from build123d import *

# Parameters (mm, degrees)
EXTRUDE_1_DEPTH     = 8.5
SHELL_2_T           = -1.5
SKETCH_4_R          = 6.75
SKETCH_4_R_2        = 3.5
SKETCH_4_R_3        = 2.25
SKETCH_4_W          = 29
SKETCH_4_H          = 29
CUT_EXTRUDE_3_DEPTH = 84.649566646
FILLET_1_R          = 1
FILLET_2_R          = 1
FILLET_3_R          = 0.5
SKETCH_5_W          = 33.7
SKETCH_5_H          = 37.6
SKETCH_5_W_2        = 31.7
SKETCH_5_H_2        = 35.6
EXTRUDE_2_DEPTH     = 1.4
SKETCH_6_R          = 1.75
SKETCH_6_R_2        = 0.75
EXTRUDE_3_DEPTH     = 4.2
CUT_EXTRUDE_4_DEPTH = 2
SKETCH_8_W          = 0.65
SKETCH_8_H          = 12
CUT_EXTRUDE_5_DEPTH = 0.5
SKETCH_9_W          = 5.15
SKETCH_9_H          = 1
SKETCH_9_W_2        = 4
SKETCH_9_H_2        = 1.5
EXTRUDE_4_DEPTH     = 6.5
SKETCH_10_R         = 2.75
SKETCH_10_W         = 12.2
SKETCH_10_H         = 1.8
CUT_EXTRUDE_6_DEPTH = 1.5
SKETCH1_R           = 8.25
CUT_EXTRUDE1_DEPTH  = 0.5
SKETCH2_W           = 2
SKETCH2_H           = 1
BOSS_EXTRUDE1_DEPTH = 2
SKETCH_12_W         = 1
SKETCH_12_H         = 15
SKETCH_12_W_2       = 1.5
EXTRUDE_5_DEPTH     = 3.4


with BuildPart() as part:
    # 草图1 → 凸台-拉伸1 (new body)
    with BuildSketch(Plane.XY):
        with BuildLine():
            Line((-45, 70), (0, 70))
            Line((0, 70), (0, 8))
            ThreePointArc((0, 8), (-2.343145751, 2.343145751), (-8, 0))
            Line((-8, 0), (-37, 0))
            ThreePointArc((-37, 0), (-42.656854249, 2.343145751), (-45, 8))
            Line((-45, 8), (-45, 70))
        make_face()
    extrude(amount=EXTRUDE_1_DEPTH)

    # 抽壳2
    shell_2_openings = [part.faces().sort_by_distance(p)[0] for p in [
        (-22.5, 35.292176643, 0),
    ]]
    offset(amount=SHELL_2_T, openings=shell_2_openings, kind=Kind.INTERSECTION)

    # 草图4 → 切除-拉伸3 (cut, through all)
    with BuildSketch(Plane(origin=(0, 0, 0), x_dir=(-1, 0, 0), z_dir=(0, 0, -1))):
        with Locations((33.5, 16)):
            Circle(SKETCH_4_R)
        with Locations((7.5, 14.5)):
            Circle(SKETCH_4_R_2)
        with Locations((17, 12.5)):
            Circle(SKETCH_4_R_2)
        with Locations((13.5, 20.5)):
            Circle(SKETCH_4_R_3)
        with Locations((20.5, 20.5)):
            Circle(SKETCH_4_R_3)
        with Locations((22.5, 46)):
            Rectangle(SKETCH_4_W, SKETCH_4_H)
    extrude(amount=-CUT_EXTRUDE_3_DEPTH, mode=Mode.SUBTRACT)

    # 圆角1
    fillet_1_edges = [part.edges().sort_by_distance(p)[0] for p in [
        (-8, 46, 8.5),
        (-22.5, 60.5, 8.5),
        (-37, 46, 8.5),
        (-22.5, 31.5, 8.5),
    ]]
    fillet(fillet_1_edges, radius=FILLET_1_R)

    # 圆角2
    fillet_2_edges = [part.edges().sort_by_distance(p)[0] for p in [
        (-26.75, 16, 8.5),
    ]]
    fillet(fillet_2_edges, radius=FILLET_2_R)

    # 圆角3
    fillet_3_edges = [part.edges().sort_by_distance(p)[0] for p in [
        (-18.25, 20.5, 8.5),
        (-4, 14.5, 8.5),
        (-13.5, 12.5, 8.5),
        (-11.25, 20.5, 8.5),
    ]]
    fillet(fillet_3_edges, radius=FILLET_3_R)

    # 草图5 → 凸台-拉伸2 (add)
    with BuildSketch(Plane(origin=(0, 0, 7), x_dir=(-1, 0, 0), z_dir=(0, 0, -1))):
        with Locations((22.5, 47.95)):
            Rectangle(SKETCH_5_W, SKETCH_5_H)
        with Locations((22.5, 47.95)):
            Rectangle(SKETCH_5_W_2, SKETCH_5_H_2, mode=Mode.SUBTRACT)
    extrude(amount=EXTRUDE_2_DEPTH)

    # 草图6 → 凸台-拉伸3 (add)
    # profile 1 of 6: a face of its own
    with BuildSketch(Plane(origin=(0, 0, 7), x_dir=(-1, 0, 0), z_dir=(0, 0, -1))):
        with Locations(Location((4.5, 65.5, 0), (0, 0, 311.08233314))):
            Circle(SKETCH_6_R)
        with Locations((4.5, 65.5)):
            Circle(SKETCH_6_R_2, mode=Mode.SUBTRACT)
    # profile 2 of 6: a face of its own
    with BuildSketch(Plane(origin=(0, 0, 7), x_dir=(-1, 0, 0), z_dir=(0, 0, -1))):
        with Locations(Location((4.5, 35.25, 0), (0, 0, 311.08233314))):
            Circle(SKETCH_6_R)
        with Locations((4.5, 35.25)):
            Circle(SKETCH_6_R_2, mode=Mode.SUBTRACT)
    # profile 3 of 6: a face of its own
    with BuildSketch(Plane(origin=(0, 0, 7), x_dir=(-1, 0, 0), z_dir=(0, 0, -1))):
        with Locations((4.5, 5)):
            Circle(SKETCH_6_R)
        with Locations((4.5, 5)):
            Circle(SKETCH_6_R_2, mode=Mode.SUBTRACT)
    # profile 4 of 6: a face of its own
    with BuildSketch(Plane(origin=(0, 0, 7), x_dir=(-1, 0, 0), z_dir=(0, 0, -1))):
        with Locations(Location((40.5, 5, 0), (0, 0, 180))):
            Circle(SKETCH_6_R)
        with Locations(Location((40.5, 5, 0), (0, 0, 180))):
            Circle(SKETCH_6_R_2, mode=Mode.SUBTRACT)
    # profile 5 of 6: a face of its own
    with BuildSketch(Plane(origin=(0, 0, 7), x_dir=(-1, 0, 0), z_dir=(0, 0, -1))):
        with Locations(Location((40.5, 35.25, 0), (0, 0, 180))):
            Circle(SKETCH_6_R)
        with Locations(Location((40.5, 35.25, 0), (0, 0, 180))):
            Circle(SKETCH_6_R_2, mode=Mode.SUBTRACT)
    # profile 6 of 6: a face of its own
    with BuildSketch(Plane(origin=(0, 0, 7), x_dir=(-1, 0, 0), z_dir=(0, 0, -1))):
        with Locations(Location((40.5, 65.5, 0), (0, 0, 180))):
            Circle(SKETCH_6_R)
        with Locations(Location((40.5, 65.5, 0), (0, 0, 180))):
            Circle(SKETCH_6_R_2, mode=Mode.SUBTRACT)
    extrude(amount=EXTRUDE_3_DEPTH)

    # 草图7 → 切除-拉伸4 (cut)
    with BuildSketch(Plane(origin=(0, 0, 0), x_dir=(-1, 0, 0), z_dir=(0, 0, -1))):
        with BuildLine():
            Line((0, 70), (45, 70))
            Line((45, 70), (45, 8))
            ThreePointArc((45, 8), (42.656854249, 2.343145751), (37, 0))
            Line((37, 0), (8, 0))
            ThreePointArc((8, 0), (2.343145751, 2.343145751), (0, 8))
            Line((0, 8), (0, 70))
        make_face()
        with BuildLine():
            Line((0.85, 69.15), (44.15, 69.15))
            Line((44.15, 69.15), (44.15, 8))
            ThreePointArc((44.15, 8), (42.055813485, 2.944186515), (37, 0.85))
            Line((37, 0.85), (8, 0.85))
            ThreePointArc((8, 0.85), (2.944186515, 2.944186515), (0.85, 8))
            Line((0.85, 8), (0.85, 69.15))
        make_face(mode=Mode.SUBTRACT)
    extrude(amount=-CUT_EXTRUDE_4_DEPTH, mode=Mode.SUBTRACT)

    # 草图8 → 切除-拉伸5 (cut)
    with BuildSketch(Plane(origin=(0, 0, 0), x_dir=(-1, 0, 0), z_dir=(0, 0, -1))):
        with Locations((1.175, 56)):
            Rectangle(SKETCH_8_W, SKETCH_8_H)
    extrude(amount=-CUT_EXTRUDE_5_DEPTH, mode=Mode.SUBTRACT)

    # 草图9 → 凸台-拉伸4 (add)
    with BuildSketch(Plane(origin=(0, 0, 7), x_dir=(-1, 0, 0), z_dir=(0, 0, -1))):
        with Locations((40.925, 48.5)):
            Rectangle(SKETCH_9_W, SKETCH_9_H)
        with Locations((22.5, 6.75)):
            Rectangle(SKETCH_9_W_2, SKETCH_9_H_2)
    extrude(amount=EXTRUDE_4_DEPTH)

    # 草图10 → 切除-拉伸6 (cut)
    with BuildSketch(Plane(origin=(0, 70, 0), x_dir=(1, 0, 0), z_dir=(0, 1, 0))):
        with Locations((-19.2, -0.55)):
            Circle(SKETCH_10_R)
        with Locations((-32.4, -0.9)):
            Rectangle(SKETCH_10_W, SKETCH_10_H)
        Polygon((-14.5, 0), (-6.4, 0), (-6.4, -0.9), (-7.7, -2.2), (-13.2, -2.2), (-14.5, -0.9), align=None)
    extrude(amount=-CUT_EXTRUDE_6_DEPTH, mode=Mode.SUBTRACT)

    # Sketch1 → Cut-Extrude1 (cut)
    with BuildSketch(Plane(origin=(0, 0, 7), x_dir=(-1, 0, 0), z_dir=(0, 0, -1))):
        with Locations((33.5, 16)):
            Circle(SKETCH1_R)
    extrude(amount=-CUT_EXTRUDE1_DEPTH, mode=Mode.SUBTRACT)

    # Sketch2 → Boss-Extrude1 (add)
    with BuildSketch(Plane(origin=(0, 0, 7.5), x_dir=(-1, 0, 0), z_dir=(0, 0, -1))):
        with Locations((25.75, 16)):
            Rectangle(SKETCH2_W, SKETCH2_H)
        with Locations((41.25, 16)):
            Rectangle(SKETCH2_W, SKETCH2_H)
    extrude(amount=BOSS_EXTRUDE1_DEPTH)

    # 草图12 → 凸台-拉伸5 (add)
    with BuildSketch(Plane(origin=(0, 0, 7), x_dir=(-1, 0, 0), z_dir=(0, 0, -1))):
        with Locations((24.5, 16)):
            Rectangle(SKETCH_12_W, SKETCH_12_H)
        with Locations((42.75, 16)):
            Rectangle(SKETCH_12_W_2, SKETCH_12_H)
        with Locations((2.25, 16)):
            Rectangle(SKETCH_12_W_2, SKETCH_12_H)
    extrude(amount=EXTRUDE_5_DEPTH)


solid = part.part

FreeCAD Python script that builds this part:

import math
import FreeCAD as App
import Part
import Sketcher
from FreeCAD import Vector


def edges_at(feature, points):
    """Names of the edges that pass closest to the given points."""
    edges = feature.Shape.Edges
    near = lambda p: min(range(len(edges)), key=lambda i: edges[i].distToShape(Part.Vertex(*p))[0])
    return sorted({f"Edge{near(p) + 1}" for p in points})


def faces_at(feature, points):
    """Names of the faces that lie closest to the given points."""
    faces = feature.Shape.Faces
    near = lambda p: min(range(len(faces)), key=lambda i: faces[i].distToShape(Part.Vertex(*p))[0])
    return sorted({f"Face{near(p) + 1}" for p in points})


def add_polygon(sketch, points):
    """Adds a closed chain of lines whose ends are joined by coincident constraints."""
    first, n = sketch.GeometryCount, len(points)
    for a, b in zip(points, points[1:] + points[:1]):
        sketch.addGeometry(Part.LineSegment(App.Vector(*a, 0), App.Vector(*b, 0)), False)
    for i in range(n):
        sketch.addConstraint(Sketcher.Constraint("Coincident", first + i, 2, first + (i + 1) % n, 1))

doc = App.newDocument("Part")
body = doc.addObject("PartDesign::Body", "Body")

sketch1 = body.newObject("Sketcher::SketchObject", "Sketch")
sketch1.AttachmentSupport = (doc.getObject("XY_Plane"), [""])
sketch1.MapMode = "FlatFace"
sketch1.addGeometry([
    Part.LineSegment(Vector(0, 70, 0), Vector(-45, 70, 0)),
    Part.LineSegment(Vector(-45, 70, 0), Vector(-45, 8, 0)),
    Part.ArcOfCircle(Part.Circle(Vector(-37, 8, 0), Vector(0, 0, 1), 8), math.radians(-180), math.radians(-90)),
    Part.LineSegment(Vector(-37, 0, 0), Vector(-8, 0, 0)),
    Part.ArcOfCircle(Part.Circle(Vector(-8, 8, 0), Vector(0, 0, 1), 8), math.radians(-90), math.radians(0)),
    Part.LineSegment(Vector(0, 8, 0), Vector(0, 70, 0)),
], False)
sketch1.addConstraint([
    Sketcher.Constraint("Coincident", 0, 2, 1, 1),
    Sketcher.Constraint("Tangent", 1, 2, 2, 1),
    Sketcher.Constraint("Tangent", 2, 2, 3, 1),
    Sketcher.Constraint("Tangent", 3, 2, 4, 1),
    Sketcher.Constraint("Tangent", 4, 2, 5, 1),
    Sketcher.Constraint("Coincident", 5, 2, 0, 1),
    Sketcher.Constraint("Horizontal", 0),
    Sketcher.Constraint("Vertical", 1),
    Sketcher.Constraint("Horizontal", 3),
    Sketcher.Constraint("Vertical", 5),
    Sketcher.Constraint("Equal", 2, 4),
    Sketcher.Constraint("PointOnObject", 2, 2, -1),
    Sketcher.Constraint("PointOnObject", 4, 2, -2),
    Sketcher.Constraint("Radius", 2, 8.0),
    Sketcher.Constraint("DistanceX", 0, 2, 0, 1, 45.0),
    Sketcher.Constraint("DistanceY", 1, 2, 1, 1, 62.0),
])
pad1 = body.newObject("PartDesign::Pad", "Pad")
pad1.Profile = sketch1
pad1.Length = 8.5
doc.recompute()

thickness = body.newObject("PartDesign::Thickness", "Thickness")
thickness.Base = (pad1, faces_at(pad1, [(-22.5, 35, 0)]))
thickness.Value = 1.5
thickness.Reversed = True
thickness.Join = "Intersection"

sketch2 = body.newObject("Sketcher::SketchObject", "Sketch001")
sketch2.AttachmentSupport = (doc.getObject("XY_Plane"), [""])
sketch2.MapMode = "FlatFace"
sketch2.addGeometry(Part.Circle(Vector(-33.5, 16, 0), Vector(0, 0, 1), 6.8), False)
sketch2.addGeometry(Part.Circle(Vector(-7.5, 14.5, 0), Vector(0, 0, 1), 3.5), False)
sketch2.addGeometry(Part.Circle(Vector(-17, 12.5, 0), Vector(0, 0, 1), 3.5), False)
sketch2.addGeometry(Part.Circle(Vector(-13.5, 20.5, 0), Vector(0, 0, 1), 2.2), False)
sketch2.addGeometry(Part.Circle(Vector(-20.5, 20.5, 0), Vector(0, 0, 1), 2.2), False)
add_polygon(sketch2, [(-8, 60.5), (-8, 31.5), (-37, 31.5), (-37, 60.5)])
sketch2.addConstraint([
    Sketcher.Constraint("Vertical", 5),
    Sketcher.Constraint("Horizontal", 6),
    Sketcher.Constraint("Vertical", 7),
    Sketcher.Constraint("Horizontal", 8),
    Sketcher.Constraint("Equal", 1, 2),
    Sketcher.Constraint("Equal", 3, 4),
    Sketcher.Constraint("Horizontal", 3, 3, 4, 3),
    Sketcher.Constraint("Equal", 8, 5),
    Sketcher.Constraint("Diameter", 1, 7.0),
    Sketcher.Constraint("Diameter", 0, 13.5),
    Sketcher.Constraint("Diameter", 3, 4.5),
    Sketcher.Constraint("DistanceX", 6, 2, 6, 1, 29.0),
    Sketcher.Constraint("DistanceY", -1, 1, 0, 3, 16.0),
    Sketcher.Constraint("DistanceX", 2, 3, -1, 1, 17.0),
    Sketcher.Constraint("DistanceX", 5, 2, -1, 1, 8.0),
    Sketcher.Constraint("DistanceX", 0, 3, 1, 3, 26.0),
    Sketcher.Constraint("DistanceY", 2, 3, 1, 3, 2.0),
    Sketcher.Constraint("DistanceX", 3, 3, 1, 3, 6.0),
    Sketcher.Constraint("DistanceY", 1, 3, 3, 3, 6.0),
    Sketcher.Constraint("DistanceX", 4, 3, 3, 3, 7.0),
    Sketcher.Constraint("DistanceY", 3, 3, 5, 2, 11.0),
    Sketcher.Constraint("DistanceX", 0, 3, -1, 1, 33.5),
    Sketcher.Constraint("DistanceY", -1, 1, 1, 3, 14.5),
])
pocket1 = body.newObject("PartDesign::Pocket", "Pocket")
pocket1.Profile = sketch2
pocket1.Type = "ThroughAll"
pocket1.Reversed = True
doc.recompute()

fillet = body.newObject("PartDesign::Fillet", "Fillet")
fillet.Base = (pocket1, edges_at(pocket1, [
    (-8, 46, 8.5),
    (-22.5, 60.5, 8.5),
    (-37, 46, 8.5),
    (-22.5, 31.5, 8.5),
]))
fillet.Radius = 1
doc.recompute()

fillet2 = body.newObject("PartDesign::Fillet", "Fillet001")
fillet2.Base = (fillet, edges_at(fillet, [(-26.75, 16, 8.5)]))
fillet2.Radius = 1
doc.recompute()

fillet3 = body.newObject("PartDesign::Fillet", "Fillet002")
fillet3.Base = (fillet2, edges_at(fillet2, [
    (-18.25, 20.5, 8.5),
    (-4, 14.5, 8.5),
    (-13.5, 12.5, 8.5),
    (-11.25, 20.5, 8.5),
]))
fillet3.Radius = 0.5

sketch3 = body.newObject("Sketcher::SketchObject", "Sketch002")
sketch3.AttachmentSupport = (doc.getObject("XY_Plane"), [""])
sketch3.MapMode = "FlatFace"
sketch3.AttachmentOffset = App.Placement(Vector(0, 0, 7), App.Rotation())
add_polygon(sketch3, [(-6, 67), (-6, 29), (-39, 29), (-39, 67)])
add_polygon(sketch3, [(-38, 30), (-7, 30), (-7, 66), (-38, 66)])
sketch3.addConstraint([
    Sketcher.Constraint("Vertical", 0),
    Sketcher.Constraint("Horizontal", 1),
    Sketcher.Constraint("Vertical", 2),
    Sketcher.Constraint("Horizontal", 3),
    Sketcher.Constraint("Horizontal", 4),
    Sketcher.Constraint("Vertical", 5),
    Sketcher.Constraint("Horizontal", 6),
    Sketcher.Constraint("Vertical", 7),
    Sketcher.Constraint("DistanceX", 1, 2, 1, 1, 33.7),
    Sketcher.Constraint("DistanceX", 4, 1, 4, 2, 31.7),
    Sketcher.Constraint("DistanceY", 0, 2, 0, 1, 37.6),
    Sketcher.Constraint("DistanceY", 5, 1, 5, 2, 35.6),
    Sketcher.Constraint("DistanceX", 4, 2, 0, 2, 1.0),
    Sketcher.Constraint("DistanceY", 0, 2, 4, 2, 1.0),
    Sketcher.Constraint("DistanceX", 0, 2, -1, 1, 5.65),
    Sketcher.Constraint("DistanceY", -1, 1, 0, 2, 29.15),
])
pad2 = body.newObject("PartDesign::Pad", "Pad001")
pad2.Profile = sketch3
pad2.Length = 1.4
pad2.Reversed = True

sketch4 = body.newObject("Sketcher::SketchObject", "Sketch003")
sketch4.AttachmentSupport = (doc.getObject("XY_Plane"), [""])
sketch4.MapMode = "FlatFace"
sketch4.AttachmentOffset = App.Placement(Vector(0, 0, 7), App.Rotation())
sketch4.addGeometry([
    Part.Circle(Vector(-4.5, 65.5, 0), Vector(0, 0, 1), 1.8),
    Part.Circle(Vector(-4.5, 65.5, 0), Vector(0, 0, 1), 0.8),
    Part.Circle(Vector(-4.5, 35.2, 0), Vector(0, 0, 1), 1.8),
    Part.Circle(Vector(-4.5, 35.2, 0), Vector(0, 0, 1), 0.8),
    Part.Circle(Vector(-4.5, 5, 0), Vector(0, 0, 1), 1.8),
    Part.Circle(Vector(-4.5, 5, 0), Vector(0, 0, 1), 0.8),
    Part.Circle(Vector(-40.5, 5, 0), Vector(0, 0, 1), 1.8),
    Part.Circle(Vector(-40.5, 5, 0), Vector(0, 0, 1), 0.8),
    Part.Circle(Vector(-40.5, 35.2, 0), Vector(0, 0, 1), 1.8),
    Part.Circle(Vector(-40.5, 35.2, 0), Vector(0, 0, 1), 0.8),
    Part.Circle(Vector(-40.5, 65.5, 0), Vector(0, 0, 1), 1.8),
    Part.Circle(Vector(-40.5, 65.5, 0), Vector(0, 0, 1), 0.8),
], False)
sketch4.addConstraint([
    Sketcher.Constraint("Coincident", 1, 3, 0, 3),
    Sketcher.Constraint("Coincident", 3, 3, 2, 3),
    Sketcher.Constraint("Coincident", 5, 3, 4, 3),
    Sketcher.Constraint("Coincident", 7, 3, 6, 3),
    Sketcher.Constraint("Coincident", 9, 3, 8, 3),
    Sketcher.Constraint("Coincident", 11, 3, 10, 3),
    Sketcher.Constraint("Equal", 0, 2),
    Sketcher.Constraint("Equal", 1, 3),
    Sketcher.Constraint("Equal", 2, 4),
    Sketcher.Constraint("Equal", 3, 5),
    Sketcher.Constraint("Equal", 4, 6),
    Sketcher.Constraint("Equal", 5, 7),
    Sketcher.Constraint("Equal", 6, 8),
    Sketcher.Constraint("Equal", 7, 9),
    Sketcher.Constraint("Equal", 8, 10),
    Sketcher.Constraint("Equal", 9, 11),
    Sketcher.Constraint("Horizontal", 5, 3, 6, 3),
    Sketcher.Constraint("Horizontal", 3, 3, 8, 3),
    Sketcher.Constraint("Horizontal", 1, 3, 10, 3),
    Sketcher.Constraint("Vertical", 1, 3, 2, 3),
    Sketcher.Constraint("Vertical", 3, 3, 4, 3),
    Sketcher.Constraint("Vertical", 7, 3, 8, 3),
    Sketcher.Constraint("Vertical", 9, 3, 10, 3),
    Sketcher.Constraint("Diameter", 0, 3.5),
    Sketcher.Constraint("Diameter", 1, 1.5),
    Sketcher.Constraint("DistanceY", -1, 1, 4, 3, 5.0),
    Sketcher.Constraint("DistanceX", 6, 3, 4, 3, 36.0),
    Sketcher.Constraint("DistanceX", 0, 3, -1, 1, 4.5),
    Sketcher.Constraint("DistanceY", -1, 1, 0, 3, 65.5),
    Sketcher.Constraint("DistanceY", -1, 1, 2, 3, 35.25),
])
pad3 = body.newObject("PartDesign::Pad", "Pad002")
pad3.Profile = sketch4
pad3.Length = 4.2
pad3.Reversed = True

sketch5 = body.newObject("Sketcher::SketchObject", "Sketch004")
sketch5.AttachmentSupport = (doc.getObject("XY_Plane"), [""])
sketch5.MapMode = "FlatFace"
sketch5.addGeometry([
    Part.LineSegment(Vector(-45, 70, 0), Vector(0, 70, 0)),
    Part.LineSegment(Vector(0, 70, 0), Vector(0, 8, 0)),
    Part.ArcOfCircle(Part.Circle(Vector(-8, 8, 0), Vector(0, 0, 1), 8), math.radians(-90), math.radians(0)),
    Part.LineSegment(Vector(-8, 0, 0), Vector(-37, 0, 0)),
    Part.ArcOfCircle(Part.Circle(Vector(-37, 8, 0), Vector(0, 0, 1), 8), math.radians(-180), math.radians(-90)),
    Part.LineSegment(Vector(-45, 8, 0), Vector(-45, 70, 0)),
    Part.LineSegment(Vector(-1, 69, 0), Vector(-44, 69, 0)),
    Part.LineSegment(Vector(-44, 69, 0), Vector(-44, 8, 0)),
    Part.ArcOfCircle(Part.Circle(Vector(-37, 8, 0), Vector(0, 0, 1), 7), math.radians(-180), math.radians(-90)),
    Part.LineSegment(Vector(-37, 1, 0), Vector(-8, 1, 0)),
    Part.ArcOfCircle(Part.Circle(Vector(-8, 8, 0), Vector(0, 0, 1), 7), math.radians(-90), math.radians(0)),
    Part.LineSegment(Vector(-1, 8, 0), Vector(-1, 69, 0)),
], False)
sketch5.addConstraint([
    Sketcher.Constraint("Coincident", 0, 2, 1, 1),
    Sketcher.Constraint("Tangent", 1, 2, 2, 2),
    Sketcher.Constraint("Tangent", 2, 1, 3, 1),
    Sketcher.Constraint("Tangent", 3, 2, 4, 2),
    Sketcher.Constraint("Tangent", 4, 1, 5, 1),
    Sketcher.Constraint("Coincident", 5, 2, 0, 1),
    Sketcher.Constraint("Coincident", 6, 2, 7, 1),
    Sketcher.Constraint("Tangent", 7, 2, 8, 1),
    Sketcher.Constraint("Tangent", 8, 2, 9, 1),
    Sketcher.Constraint("Tangent", 9, 2, 10, 1),
    Sketcher.Constraint("Tangent", 10, 2, 11, 1),
    Sketcher.Constraint("Coincident", 11, 2, 6, 1),
    Sketcher.Constraint("Horizontal", 0),
    Sketcher.Constraint("Vertical", 1),
    Sketcher.Constraint("Horizontal", 3),
    Sketcher.Constraint("Vertical", 5),
    Sketcher.Constraint("Horizontal", 6),
    Sketcher.Constraint("Vertical", 7),
    Sketcher.Constraint("Horizontal", 9),
    Sketcher.Constraint("Vertical", 11),
    Sketcher.Constraint("Coincident", 8, 3, 4, 3),
    Sketcher.Constraint("Coincident", 10, 3, 2, 3),
    Sketcher.Constraint("Equal", 2, 4),
    Sketcher.Constraint("PointOnObject", 0, 2, -2),
    Sketcher.Constraint("PointOnObject", 2, 1, -1),
    Sketcher.Constraint("Radius", 2, 8.0),
    Sketcher.Constraint("DistanceX", 0, 1, 0, 2, 45.0),
    Sketcher.Constraint("DistanceY", 1, 2, 1, 1, 62.0),
    Sketcher.Constraint("Radius", 8, 7.15),
    Sketcher.Constraint("DistanceY", 7, 2, 7, 1, 61.15),
])
pocket2 = body.newObject("PartDesign::Pocket", "Pocket001")
pocket2.Profile = sketch5
pocket2.Length = 2
pocket2.Reversed = True

sketch6 = body.newObject("Sketcher::SketchObject", "Sketch005")
sketch6.AttachmentSupport = (doc.getObject("XY_Plane"), [""])
sketch6.MapMode = "FlatFace"
add_polygon(sketch6, [(-0.8, 62), (-0.8, 50), (-1.5, 50), (-1.5, 62)])
sketch6.addConstraint([
    Sketcher.Constraint("Vertical", 0),
    Sketcher.Constraint("Horizontal", 1),
    Sketcher.Constraint("Vertical", 2),
    Sketcher.Constraint("Horizontal", 3),
    Sketcher.Constraint("DistanceY", 0, 2, 0, 1, 12.0),
    Sketcher.Constraint("DistanceY", -1, 1, 0, 2, 50.0),
    Sketcher.Constraint("DistanceX", 1, 2, 1, 1, 0.65),
    Sketcher.Constraint("DistanceX", 1, 2, -1, 1, 1.5),
])
pocket3 = body.newObject("PartDesign::Pocket", "Pocket002")
pocket3.Profile = sketch6
pocket3.Length = 0.5
pocket3.Reversed = True

sketch7 = body.newObject("Sketcher::SketchObject", "Sketch006")
sketch7.AttachmentSupport = (doc.getObject("XY_Plane"), [""])
sketch7.MapMode = "FlatFace"
sketch7.AttachmentOffset = App.Placement(Vector(0, 0, 7), App.Rotation())
add_polygon(sketch7, [(-38.4, 49), (-38.4, 48), (-43.5, 48), (-43.5, 49)])
add_polygon(sketch7, [(-20.5, 7.5), (-20.5, 6), (-24.5, 6), (-24.5, 7.5)])
sketch7.addConstraint([
    Sketcher.Constraint("Vertical", 0),
    Sketcher.Constraint("Horizontal", 1),
    Sketcher.Constraint("Vertical", 2),
    Sketcher.Constraint("Horizontal", 3),
    Sketcher.Constraint("Vertical", 4),
    Sketcher.Constraint("Horizontal", 5),
    Sketcher.Constraint("Vertical", 6),
    Sketcher.Constraint("Horizontal", 7),
    Sketcher.Constraint("DistanceX", 5, 2, 5, 1, 4.0),
    Sketcher.Constraint("DistanceY", 0, 2, 0, 1, 1.0),
    Sketcher.Constraint("DistanceY", 4, 2, 4, 1, 1.5),
    Sketcher.Constraint("DistanceY", -1, 1, 0, 2, 48.0),
    Sketcher.Constraint("DistanceY", -1, 1, 4, 2, 6.0),
    Sketcher.Constraint("DistanceX", 1, 2, 4, 2, 23.0),
    Sketcher.Constraint("DistanceX", 1, 2, 1, 1, 5.15),
    Sketcher.Constraint("DistanceX", 1, 2, -1, 1, 43.5),
])
pad4 = body.newObject("PartDesign::Pad", "Pad003")
pad4.Profile = sketch7
pad4.Length = 6.5
pad4.Reversed = True

sketch8 = body.newObject("Sketcher::SketchObject", "Sketch007")
sketch8.AttachmentSupport = (doc.getObject("XZ_Plane"), [""])
sketch8.MapMode = "FlatFace"
sketch8.AttachmentOffset = App.Placement(Vector(0, 0, -70), App.Rotation())
sketch8.addGeometry(Part.Circle(Vector(-19.2, 0.6, 0), Vector(0, 0, 1), 2.8), False)
add_polygon(sketch8, [(-38.5, 0), (-38.5, 1.8), (-26.3, 1.8), (-26.3, 0)])
add_polygon(sketch8, [(-6.4, 0), (-14.5, 0), (-14.5, 0.9), (-13.2, 2.2), (-7.7, 2.2), (-6.4, 0.9)])
sketch8.addConstraint([
    Sketcher.Constraint("Vertical", 1),
    Sketcher.Constraint("Horizontal", 2),
    Sketcher.Constraint("Vertical", 3),
    Sketcher.Constraint("Horizontal", 4),
    Sketcher.Constraint("Horizontal", 5),
    Sketcher.Constraint("Vertical", 6),
    Sketcher.Constraint("Horizontal", 8),
    Sketcher.Constraint("Vertical", 10),
    Sketcher.Constraint("PointOnObject", 3, 2, -1),
    Sketcher.Constraint("PointOnObject", 5, 2, -1),
    Sketcher.Constraint("Perpendicular", 7, 9),
    Sketcher.Constraint("Horizontal", 6, 2, 9, 2),
    Sketcher.Constraint("Equal", 7, 9),
    Sketcher.Constraint("Diameter", 0, 5.5),
    Sketcher.Constraint("DistanceX", 2, 1, 2, 2, 12.2),
    Sketcher.Constraint("DistanceX", 5, 2, 5, 1, 8.1),
    Sketcher.Constraint("DistanceX", 8, 1, 8, 2, 5.5),
    Sketcher.Constraint("DistanceY", 1, 1, 1, 2, 1.8),
    Sketcher.Constraint("DistanceY", 6, 1, 6, 2, 0.9),
    Sketcher.Constraint("DistanceX", 4, 2, 5, 2, 24.0),
    Sketcher.Constraint("DistanceX", 0, 3, 7, 2, 6.0),
    Sketcher.Constraint("DistanceX", 0, 3, -1, 1, 19.2),
    Sketcher.Constraint("DistanceY", -1, 1, 0, 3, 0.55),
])
pocket4 = body.newObject("PartDesign::Pocket", "Pocket003")
pocket4.Profile = sketch8
pocket4.Length = 1.5
pocket4.Reversed = True

sketch9 = body.newObject("Sketcher::SketchObject", "Sketch008")
sketch9.AttachmentSupport = (doc.getObject("XY_Plane"), [""])
sketch9.MapMode = "FlatFace"
sketch9.AttachmentOffset = App.Placement(Vector(0, 0, 7), App.Rotation())
sketch9.addGeometry(Part.Circle(Vector(-34, 16, 0), Vector(0, 0, 1), 8), False)
sketch9.addConstraint([
    Sketcher.Constraint("Diameter", 0, 16.5),
    Sketcher.Constraint("DistanceY", -1, 1, 0, 3, 16.0),
    Sketcher.Constraint("DistanceX", 0, 3, -1, 1, 33.5),
])
pocket5 = body.newObject("PartDesign::Pocket", "Pocket004")
pocket5.Profile = sketch9
pocket5.Length = 0.5
pocket5.Reversed = True

sketch10 = body.newObject("Sketcher::SketchObject", "Sketch009")
sketch10.AttachmentSupport = (doc.getObject("XY_Plane"), [""])
sketch10.MapMode = "FlatFace"
sketch10.AttachmentOffset = App.Placement(Vector(0, 0, 7.5), App.Rotation())
add_polygon(sketch10, [(-24.8, 16.5), (-24.8, 15.5), (-26.8, 15.5), (-26.8, 16.5)])
add_polygon(sketch10, [(-40.2, 16.5), (-40.2, 15.5), (-42.2, 15.5), (-42.2, 16.5)])
sketch10.addConstraint([
    Sketcher.Constraint("Vertical", 0),
    Sketcher.Constraint("Horizontal", 1),
    Sketcher.Constraint("Vertical", 2),
    Sketcher.Constraint("Horizontal", 3),
    Sketcher.Constraint("Vertical", 4),
    Sketcher.Constraint("Horizontal", 5),
    Sketcher.Constraint("Vertical", 6),
    Sketcher.Constraint("Horizontal", 7),
    Sketcher.Constraint("Horizontal", 1, 2, 4, 2),
    Sketcher.Constraint("Horizontal", 3, 2, 6, 2),
    Sketcher.Constraint("Equal", 3, 5),
    Sketcher.Constraint("DistanceX", 1, 2, 1, 1, 2.0),
    Sketcher.Constraint("DistanceY", 0, 2, 0, 1, 1.0),
    Sketcher.Constraint("DistanceY", -1, 1, 0, 2, 15.5),
    Sketcher.Constraint("DistanceX", 4, 2, 1, 2, 13.5),
    Sketcher.Constraint("DistanceX", 0, 2, -1, 1, 24.75),
])
pad5 = body.newObject("PartDesign::Pad", "Pad004")
pad5.Profile = sketch10
pad5.Length = 2
pad5.Reversed = True

sketch11 = body.newObject("Sketcher::SketchObject", "Sketch010")
sketch11.AttachmentSupport = (doc.getObject("XY_Plane"), [""])
sketch11.MapMode = "FlatFace"
sketch11.AttachmentOffset = App.Placement(Vector(0, 0, 7), App.Rotation())
add_polygon(sketch11, [(-24, 23.5), (-24, 8.5), (-25, 8.5), (-25, 23.5)])
add_polygon(sketch11, [(-42, 23.5), (-42, 8.5), (-43.5, 8.5), (-43.5, 23.5)])
add_polygon(sketch11, [(-1.5, 23.5), (-1.5, 8.5), (-3, 8.5), (-3, 23.5)])
sketch11.addConstraint([
    Sketcher.Constraint("Vertical", 0),
    Sketcher.Constraint("Horizontal", 1),
    Sketcher.Constraint("Vertical", 2),
    Sketcher.Constraint("Horizontal", 3),
    Sketcher.Constraint("Vertical", 4),
    Sketcher.Constraint("Horizontal", 5),
    Sketcher.Constraint("Vertical", 6),
    Sketcher.Constraint("Horizontal", 7),
    Sketcher.Constraint("Vertical", 8),
    Sketcher.Constraint("Horizontal", 9),
    Sketcher.Constraint("Vertical", 10),
    Sketcher.Constraint("Horizontal", 11),
    Sketcher.Constraint("Horizontal", 1, 2, 4, 2),
    Sketcher.Constraint("Horizontal", 3, 2, 6, 2),
    Sketcher.Constraint("Horizontal", 5, 2, 8, 2),
    Sketcher.Constraint("Horizontal", 7, 2, 10, 2),
    Sketcher.Constraint("Equal", 7, 9),
    Sketcher.Constraint("DistanceX", 1, 2, 1, 1, 1.0),
    Sketcher.Constraint("DistanceY", 0, 2, 0, 1, 15.0),
    Sketcher.Constraint("DistanceX", 5, 2, 5, 1, 1.5),
    Sketcher.Constraint("DistanceX", 0, 2, -1, 1, 24.0),
    Sketcher.Constraint("DistanceX", 4, 2, -1, 1, 42.0),
    Sketcher.Constraint("DistanceX", 9, 2, -1, 1, 3.0),
    Sketcher.Constraint("DistanceY", -1, 1, 0, 2, 8.5),
])
pad6 = body.newObject("PartDesign::Pad", "Pad005")
pad6.Profile = sketch11
pad6.Length = 3.4
pad6.Reversed = True

doc.recompute()
